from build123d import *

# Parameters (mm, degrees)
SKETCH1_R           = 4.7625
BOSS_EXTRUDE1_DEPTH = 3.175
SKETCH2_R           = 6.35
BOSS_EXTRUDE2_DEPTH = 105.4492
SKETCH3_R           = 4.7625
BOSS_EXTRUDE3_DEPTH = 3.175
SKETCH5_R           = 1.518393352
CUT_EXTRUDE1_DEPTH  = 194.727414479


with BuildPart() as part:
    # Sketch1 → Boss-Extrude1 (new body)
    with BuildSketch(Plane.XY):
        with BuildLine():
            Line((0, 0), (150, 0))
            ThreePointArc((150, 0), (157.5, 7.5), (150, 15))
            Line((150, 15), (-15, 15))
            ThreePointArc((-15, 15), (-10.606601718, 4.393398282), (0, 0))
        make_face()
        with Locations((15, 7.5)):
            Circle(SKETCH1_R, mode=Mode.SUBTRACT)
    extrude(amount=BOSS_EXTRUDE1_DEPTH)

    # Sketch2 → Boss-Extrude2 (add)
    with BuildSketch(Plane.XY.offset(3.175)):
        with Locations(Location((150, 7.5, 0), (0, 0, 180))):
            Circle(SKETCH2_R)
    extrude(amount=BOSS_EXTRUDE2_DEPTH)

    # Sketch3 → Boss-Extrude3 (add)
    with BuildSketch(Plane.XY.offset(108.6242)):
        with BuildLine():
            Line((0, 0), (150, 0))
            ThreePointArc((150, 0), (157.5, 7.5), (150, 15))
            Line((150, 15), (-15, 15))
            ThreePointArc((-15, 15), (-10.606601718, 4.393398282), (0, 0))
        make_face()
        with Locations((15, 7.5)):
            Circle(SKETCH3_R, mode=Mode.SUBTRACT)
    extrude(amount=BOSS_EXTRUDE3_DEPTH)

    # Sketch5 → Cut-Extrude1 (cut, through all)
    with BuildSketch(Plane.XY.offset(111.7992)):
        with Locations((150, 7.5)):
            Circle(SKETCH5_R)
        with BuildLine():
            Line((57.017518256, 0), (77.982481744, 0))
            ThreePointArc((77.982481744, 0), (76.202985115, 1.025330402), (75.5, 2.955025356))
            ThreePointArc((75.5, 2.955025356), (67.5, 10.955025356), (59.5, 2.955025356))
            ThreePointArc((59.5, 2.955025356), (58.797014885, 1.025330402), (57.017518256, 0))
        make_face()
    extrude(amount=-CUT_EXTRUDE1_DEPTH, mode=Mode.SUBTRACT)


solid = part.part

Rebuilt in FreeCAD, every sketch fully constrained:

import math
import FreeCAD as App
import Part
import Sketcher

V = App.Vector

doc = App.newDocument("Part")
body = doc.addObject("PartDesign::Body", "Body")

sketch1 = body.newObject("Sketcher::SketchObject", "Sketch")
sketch1.AttachmentSupport = (doc.getObject("XY_Plane"), [""])
sketch1.MapMode = "FlatFace"
sketch1.addGeometry([
    Part.LineSegment(V(0, 0, 0), V(150, 0, 0)),
    Part.ArcOfCircle(Part.Circle(V(150, 7.5, 0), V(0, 0, 1), 7.5), math.radians(-90), math.radians(90)),
    Part.LineSegment(V(150, 15, 0), V(-15, 15, 0)),
    Part.ArcOfCircle(Part.Circle(V(0, 15, 0), V(0, 0, 1), 15), math.radians(180), math.radians(270)),
    Part.Circle(V(15, 7.5, 0), V(0, 0, 1), 4.7625),
], False)
sketch1.addConstraint([
    Sketcher.Constraint("Tangent", 0, 2, 1, 1),
    Sketcher.Constraint("Tangent", 1, 2, 2, 1),
    Sketcher.Constraint("Coincident", 2, 2, 3, 1),
    Sketcher.Constraint("Tangent", 3, 2, 0, 1),
    Sketcher.Constraint("Horizontal", 0),
    Sketcher.Constraint("Horizontal", 2),
    Sketcher.Constraint("Coincident", 3, 2, -1, 1),
    Sketcher.Constraint("Horizontal", 1, 3, 4, 3),
    Sketcher.Constraint("Horizontal", 3, 3, 1, 2),
    Sketcher.Constraint("Radius", 3, 15.0),
    Sketcher.Constraint("DistanceX", 0, 1, 0, 2, 150.0),
    Sketcher.Constraint("Diameter", 4, 9.525),
    Sketcher.Constraint("DistanceX", -1, 1, 4, 3, 15.0),
])
pad1 = body.newObject("PartDesign::Pad", "Pad")
pad1.Profile = sketch1
pad1.Length = 3.175

sketch2 = body.newObject("Sketcher::SketchObject", "Sketch001")
sketch2.AttachmentSupport = (doc.getObject("XY_Plane"), [""])
sketch2.MapMode = "FlatFace"
sketch2.AttachmentOffset = App.Placement(V(0, 0, 3.175), App.Rotation())
sketch2.addGeometry(Part.Circle(V(150, 7.5, 0), V(0, 0, 1), 6.35), False)
sketch2.addConstraint([
    Sketcher.Constraint("Diameter", 0, 12.7),
    Sketcher.Constraint("DistanceX", -1, 1, 0, 3, 150.0),
    Sketcher.Constraint("DistanceY", -1, 1, 0, 3, 7.5),
])
pad2 = body.newObject("PartDesign::Pad", "Pad001")
pad2.Profile = sketch2
pad2.Length = 105.4492

sketch3 = body.newObject("Sketcher::SketchObject", "Sketch002")
sketch3.AttachmentSupport = (doc.getObject("XY_Plane"), [""])
sketch3.MapMode = "FlatFace"
sketch3.AttachmentOffset = App.Placement(V(0, 0, 108.6242), App.Rotation())
sketch3.addGeometry([
    Part.LineSegment(V(0, 0, 0), V(150, 0, 0)),
    Part.ArcOfCircle(Part.Circle(V(150, 7.5, 0), V(0, 0, 1), 7.5), math.radians(-90), math.radians(90)),
    Part.LineSegment(V(150, 15, 0), V(-15, 15, 0)),
    Part.ArcOfCircle(Part.Circle(V(0, 15, 0), V(0, 0, 1), 15), math.radians(180), math.radians(270)),
    Part.Circle(V(15, 7.5, 0), V(0, 0, 1), 4.7625),
], False)
sketch3.addConstraint([
    Sketcher.Constraint("Tangent", 0, 2, 1, 1),
    Sketcher.Constraint("Tangent", 1, 2, 2, 1),
    Sketcher.Constraint("Coincident", 2, 2, 3, 1),
    Sketcher.Constraint("Tangent", 3, 2, 0, 1),
    Sketcher.Constraint("Horizontal", 0),
    Sketcher.Constraint("Horizontal", 2),
    Sketcher.Constraint("Coincident", 3, 2, -1, 1),
    Sketcher.Constraint("Horizontal", 1, 3, 4, 3),
    Sketcher.Constraint("Horizontal", 3, 3, 1, 2),
    Sketcher.Constraint("Radius", 3, 15.0),
    Sketcher.Constraint("DistanceX", 0, 1, 0, 2, 150.0),
    Sketcher.Constraint("Diameter", 4, 9.525),
    Sketcher.Constraint("DistanceX", -1, 1, 4, 3, 15.0),
])
pad3 = body.newObject("PartDesign::Pad", "Pad002")
pad3.Profile = sketch3
pad3.Length = 3.175

sketch4 = body.newObject("Sketcher::SketchObject", "Sketch003")
sketch4.AttachmentSupport = (doc.getObject("XY_Plane"), [""])
sketch4.MapMode = "FlatFace"
sketch4.AttachmentOffset = App.Placement(V(0, 0, 111.7992), App.Rotation())
sketch4.addGeometry([
    Part.Circle(V(150, 7.5, 0), V(0, 0, 1), 1.518393),
    Part.LineSegment(V(57.017518, 0, 0), V(77.982482, 0, 0)),
    Part.ArcOfCircle(Part.Circle(V(78.5, 2.955025, 0), V(0, 0, 1), 3), math.radians(-180), math.radians(-99.93356)),
    Part.ArcOfCircle(Part.Circle(V(67.5, 2.955025, 0), V(0, 0, 1), 8), math.radians(0), math.radians(180)),
    Part.ArcOfCircle(Part.Circle(V(56.5, 2.955025, 0), V(0, 0, 1), 3), math.radians(-80.06644), math.radians(0)),
], False)
sketch4.addConstraint([
    Sketcher.Constraint("Coincident", 1, 2, 2, 2),
    Sketcher.Constraint("Tangent", 2, 1, 3, 1),
    Sketcher.Constraint("Tangent", 3, 2, 4, 2),
    Sketcher.Constraint("Coincident", 4, 1, 1, 1),
    Sketcher.Constraint("Horizontal", 1),
    Sketcher.Constraint("Equal", 2, 4),
    Sketcher.Constraint("PointOnObject", 1, 2, -1),
    Sketcher.Constraint("Horizontal", 2, 3, 3, 3),
    Sketcher.Constraint("Horizontal", 3, 3, 4, 3),
    Sketcher.Constraint("Radius", 2, 3.0),
    Sketcher.Constraint("Radius", 3, 8.0),
    Sketcher.Constraint("DistanceX", -1, 1, 0, 3, 150.0),
    Sketcher.Constraint("DistanceY", -1, 1, 0, 3, 7.5),
    Sketcher.Constraint("DistanceX", -1, 1, 2, 3, 78.5),
    Sketcher.Constraint("Diameter", 0, 3.036787),
    Sketcher.Constraint("DistanceX", 1, 1, 1, 2, 20.964963),
])
pocket1 = body.newObject("PartDesign::Pocket", "Pocket")
pocket1.Profile = sketch4
pocket1.Type = "ThroughAll"

doc.recompute()
